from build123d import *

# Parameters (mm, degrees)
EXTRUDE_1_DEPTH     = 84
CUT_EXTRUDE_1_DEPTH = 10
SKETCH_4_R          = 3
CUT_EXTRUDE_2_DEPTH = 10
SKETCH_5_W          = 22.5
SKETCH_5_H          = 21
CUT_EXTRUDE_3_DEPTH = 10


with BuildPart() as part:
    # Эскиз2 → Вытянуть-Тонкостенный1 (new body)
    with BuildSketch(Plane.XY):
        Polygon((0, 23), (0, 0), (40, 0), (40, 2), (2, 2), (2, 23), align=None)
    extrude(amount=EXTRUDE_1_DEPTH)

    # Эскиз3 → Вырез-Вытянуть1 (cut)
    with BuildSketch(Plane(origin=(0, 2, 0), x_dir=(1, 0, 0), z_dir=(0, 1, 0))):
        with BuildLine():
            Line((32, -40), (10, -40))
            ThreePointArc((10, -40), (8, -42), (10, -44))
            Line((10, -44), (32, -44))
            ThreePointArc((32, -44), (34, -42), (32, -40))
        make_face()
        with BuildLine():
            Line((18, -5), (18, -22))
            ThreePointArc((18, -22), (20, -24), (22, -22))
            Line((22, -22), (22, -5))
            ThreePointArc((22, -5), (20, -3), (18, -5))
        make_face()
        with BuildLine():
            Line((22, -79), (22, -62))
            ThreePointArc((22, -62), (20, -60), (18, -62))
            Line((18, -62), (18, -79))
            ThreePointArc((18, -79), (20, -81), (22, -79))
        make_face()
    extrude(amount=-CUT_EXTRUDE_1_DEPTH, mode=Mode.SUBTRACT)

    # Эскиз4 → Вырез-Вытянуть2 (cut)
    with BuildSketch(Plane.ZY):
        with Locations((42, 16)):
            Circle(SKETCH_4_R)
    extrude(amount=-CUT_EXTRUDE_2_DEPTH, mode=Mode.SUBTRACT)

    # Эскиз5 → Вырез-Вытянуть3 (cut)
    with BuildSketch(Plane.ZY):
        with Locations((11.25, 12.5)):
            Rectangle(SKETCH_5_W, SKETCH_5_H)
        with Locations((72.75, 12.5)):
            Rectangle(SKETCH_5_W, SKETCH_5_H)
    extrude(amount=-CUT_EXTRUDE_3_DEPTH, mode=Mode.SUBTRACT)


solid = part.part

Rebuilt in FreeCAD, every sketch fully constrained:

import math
import FreeCAD as App
import Part
import Sketcher


def add_polygon(sketch, points):
    """Adds a closed chain of lines whose ends are joined by coincident constraints."""
    first, n = sketch.GeometryCount, len(points)
    for a, b in zip(points, points[1:] + points[:1]):
        sketch.addGeometry(Part.LineSegment(App.Vector(*a, 0), App.Vector(*b, 0)), False)
    for i in range(n):
        sketch.addConstraint(Sketcher.Constraint("Coincident", first + i, 2, first + (i + 1) % n, 1))

doc = App.newDocument("Part")
body = doc.addObject("PartDesign::Body", "Body")

# Sketch on XY plane
sketch1 = body.newObject("Sketcher::SketchObject", "Sketch")
sketch1.AttachmentSupport = (doc.getObject("XY_Plane"), [""])
sketch1.MapMode = "FlatFace"
add_polygon(sketch1, [(0, 23), (0, 0), (40, 0), (40, 2), (2, 2), (2, 23)])  # lines 0-5
sketch1.addConstraint([
    Sketcher.Constraint("Vertical", 0),
    Sketcher.Constraint("Horizontal", 1),
    Sketcher.Constraint("Vertical", 2),
    Sketcher.Constraint("Horizontal", 3),
    Sketcher.Constraint("Vertical", 4),
    Sketcher.Constraint("Horizontal", 5),
    Sketcher.Constraint("Coincident", 0, 2, -1, 1),
    Sketcher.Constraint("Equal", 5, 2),
    Sketcher.Constraint("DistanceX", 1, 1, 1, 2, 40.0),
    Sketcher.Constraint("DistanceX", 3, 2, 3, 1, 38.0),
    Sketcher.Constraint("DistanceY", 0, 2, 0, 1, 23.0),
])
pad1 = body.newObject("PartDesign::Pad", "Pad")
pad1.Profile = sketch1
pad1.Length = 84

# Sketch on XZ plane
sketch2 = body.newObject("Sketcher::SketchObject", "Sketch001")
sketch2.AttachmentSupport = (doc.getObject("XZ_Plane"), [""])
sketch2.MapMode = "FlatFace"
sketch2.AttachmentOffset = App.Placement(App.Vector(0, 0, -2), App.Rotation())
sketch2.addGeometry([
    Part.LineSegment(App.Vector(32, 40, 0), App.Vector(10, 40, 0)),  # 0
    Part.ArcOfCircle(Part.Circle(App.Vector(10, 42, 0), App.Vector(0, 0, 1), 2), math.radians(90), math.radians(270)),  # 1
    Part.LineSegment(App.Vector(10, 44, 0), App.Vector(32, 44, 0)),  # 2
    Part.ArcOfCircle(Part.Circle(App.Vector(32, 42, 0), App.Vector(0, 0, 1), 2), math.radians(-90), math.radians(90)),  # 3
    Part.LineSegment(App.Vector(18, 5, 0), App.Vector(18, 22, 0)),  # 4
    Part.ArcOfCircle(Part.Circle(App.Vector(20, 22, 0), App.Vector(0, 0, 1), 2), math.radians(0), math.radians(180)),  # 5
    Part.LineSegment(App.Vector(22, 22, 0), App.Vector(22, 5, 0)),  # 6
    Part.ArcOfCircle(Part.Circle(App.Vector(20, 5, 0), App.Vector(0, 0, 1), 2), math.radians(180), math.radians(360)),  # 7
    Part.LineSegment(App.Vector(22, 79, 0), App.Vector(22, 62, 0)),  # 8
    Part.ArcOfCircle(Part.Circle(App.Vector(20, 62, 0), App.Vector(0, 0, 1), 2), math.radians(180), math.radians(360)),  # 9
    Part.LineSegment(App.Vector(18, 62, 0), App.Vector(18, 79, 0)),  # 10
    Part.ArcOfCircle(Part.Circle(App.Vector(20, 79, 0), App.Vector(0, 0, 1), 2), math.radians(0), math.radians(180)),  # 11
], False)
sketch2.addConstraint([
    Sketcher.Constraint("Tangent", 0, 2, 1, 2),
    Sketcher.Constraint("Tangent", 1, 1, 2, 1),
    Sketcher.Constraint("Tangent", 2, 2, 3, 2),
    Sketcher.Constraint("Tangent", 3, 1, 0, 1),
    Sketcher.Constraint("Tangent", 4, 2, 5, 2),
    Sketcher.Constraint("Tangent", 5, 1, 6, 1),
    Sketcher.Constraint("Tangent", 6, 2, 7, 2),
    Sketcher.Constraint("Tangent", 7, 1, 4, 1),
    Sketcher.Constraint("Tangent", 8, 2, 9, 2),
    Sketcher.Constraint("Tangent", 9, 1, 10, 1),
    Sketcher.Constraint("Tangent", 10, 2, 11, 2),
    Sketcher.Constraint("Tangent", 11, 1, 8, 1),
    Sketcher.Constraint("Horizontal", 0),
    Sketcher.Constraint("Horizontal", 2),
    Sketcher.Constraint("Vertical", 4),
    Sketcher.Constraint("Vertical", 6),
    Sketcher.Constraint("Vertical", 8),
    Sketcher.Constraint("Vertical", 10),
    Sketcher.Constraint("Equal", 3, 5),
    Sketcher.Constraint("Equal", 7, 9),
    Sketcher.Constraint("Vertical", 7, 3, 9, 3),
    Sketcher.Constraint("Equal", 6, 8),
    Sketcher.Constraint("Radius", 1, 2.0),
    Sketcher.Constraint("DistanceX", 0, 2, 0, 1, 22.0),
    Sketcher.Constraint("DistanceY", 4, 1, 4, 2, 17.0),
    Sketcher.Constraint("DistanceX", -1, 1, 1, 3, 10.0),
    Sketcher.Constraint("DistanceY", -1, 1, 1, 3, 42.0),
    Sketcher.Constraint("DistanceX", -1, 1, 5, 3, 20.0),
    Sketcher.Constraint("DistanceY", -1, 1, 5, 3, 22.0),
    Sketcher.Constraint("DistanceY", -1, 1, 9, 3, 62.0),
])
pocket1 = body.newObject("PartDesign::Pocket", "Pocket")
pocket1.Profile = sketch2
pocket1.Length = 10
pocket1.Reversed = True

# Sketch on YZ plane
sketch3 = body.newObject("Sketcher::SketchObject", "Sketch002")
sketch3.AttachmentSupport = (doc.getObject("YZ_Plane"), [""])
sketch3.MapMode = "FlatFace"
sketch3.addGeometry(Part.Circle(App.Vector(16, 42, 0), App.Vector(0, 0, 1), 3), False)
sketch3.addConstraint([
    Sketcher.Constraint("Diameter", 0, 6.0),
    Sketcher.Constraint("DistanceX", -1, 1, 0, 3, 16.0),
    Sketcher.Constraint("DistanceY", -1, 1, 0, 3, 42.0),
])
pocket2 = body.newObject("PartDesign::Pocket", "Pocket001")
pocket2.Profile = sketch3
pocket2.Length = 10
pocket2.Reversed = True

# Sketch on YZ plane
sketch4 = body.newObject("Sketcher::SketchObject", "Sketch003")
sketch4.AttachmentSupport = (doc.getObject("YZ_Plane"), [""])
sketch4.MapMode = "FlatFace"
add_polygon(sketch4, [(23, 0), (2, 0), (2, 22), (23, 22)])  # lines 0-3
add_polygon(sketch4, [(23, 62), (2, 62), (2, 84), (23, 84)])  # lines 4-7
sketch4.addConstraint([
    Sketcher.Constraint("Horizontal", 0),
    Sketcher.Constraint("Vertical", 1),
    Sketcher.Constraint("Horizontal", 2),
    Sketcher.Constraint("Vertical", 3),
    Sketcher.Constraint("Horizontal", 4),
    Sketcher.Constraint("Vertical", 5),
    Sketcher.Constraint("Horizontal", 6),
    Sketcher.Constraint("Vertical", 7),
    Sketcher.Constraint("PointOnObject", 0, 2, -1),
    Sketcher.Constraint("Vertical", 1, 2, 4, 2),
    Sketcher.Constraint("Vertical", 3, 2, 6, 2),
    Sketcher.Constraint("Equal", 3, 5),
    Sketcher.Constraint("DistanceX", 0, 2, 0, 1, 21.0),
    Sketcher.Constraint("DistanceY", 1, 1, 1, 2, 22.5),
    Sketcher.Constraint("DistanceX", -1, 1, 0, 2, 2.0),
    Sketcher.Constraint("DistanceY", -1, 1, 5, 2, 84.0),
])
pocket3 = body.newObject("PartDesign::Pocket", "Pocket002")
pocket3.Profile = sketch4
pocket3.Length = 10
pocket3.Reversed = True

doc.recompute()
